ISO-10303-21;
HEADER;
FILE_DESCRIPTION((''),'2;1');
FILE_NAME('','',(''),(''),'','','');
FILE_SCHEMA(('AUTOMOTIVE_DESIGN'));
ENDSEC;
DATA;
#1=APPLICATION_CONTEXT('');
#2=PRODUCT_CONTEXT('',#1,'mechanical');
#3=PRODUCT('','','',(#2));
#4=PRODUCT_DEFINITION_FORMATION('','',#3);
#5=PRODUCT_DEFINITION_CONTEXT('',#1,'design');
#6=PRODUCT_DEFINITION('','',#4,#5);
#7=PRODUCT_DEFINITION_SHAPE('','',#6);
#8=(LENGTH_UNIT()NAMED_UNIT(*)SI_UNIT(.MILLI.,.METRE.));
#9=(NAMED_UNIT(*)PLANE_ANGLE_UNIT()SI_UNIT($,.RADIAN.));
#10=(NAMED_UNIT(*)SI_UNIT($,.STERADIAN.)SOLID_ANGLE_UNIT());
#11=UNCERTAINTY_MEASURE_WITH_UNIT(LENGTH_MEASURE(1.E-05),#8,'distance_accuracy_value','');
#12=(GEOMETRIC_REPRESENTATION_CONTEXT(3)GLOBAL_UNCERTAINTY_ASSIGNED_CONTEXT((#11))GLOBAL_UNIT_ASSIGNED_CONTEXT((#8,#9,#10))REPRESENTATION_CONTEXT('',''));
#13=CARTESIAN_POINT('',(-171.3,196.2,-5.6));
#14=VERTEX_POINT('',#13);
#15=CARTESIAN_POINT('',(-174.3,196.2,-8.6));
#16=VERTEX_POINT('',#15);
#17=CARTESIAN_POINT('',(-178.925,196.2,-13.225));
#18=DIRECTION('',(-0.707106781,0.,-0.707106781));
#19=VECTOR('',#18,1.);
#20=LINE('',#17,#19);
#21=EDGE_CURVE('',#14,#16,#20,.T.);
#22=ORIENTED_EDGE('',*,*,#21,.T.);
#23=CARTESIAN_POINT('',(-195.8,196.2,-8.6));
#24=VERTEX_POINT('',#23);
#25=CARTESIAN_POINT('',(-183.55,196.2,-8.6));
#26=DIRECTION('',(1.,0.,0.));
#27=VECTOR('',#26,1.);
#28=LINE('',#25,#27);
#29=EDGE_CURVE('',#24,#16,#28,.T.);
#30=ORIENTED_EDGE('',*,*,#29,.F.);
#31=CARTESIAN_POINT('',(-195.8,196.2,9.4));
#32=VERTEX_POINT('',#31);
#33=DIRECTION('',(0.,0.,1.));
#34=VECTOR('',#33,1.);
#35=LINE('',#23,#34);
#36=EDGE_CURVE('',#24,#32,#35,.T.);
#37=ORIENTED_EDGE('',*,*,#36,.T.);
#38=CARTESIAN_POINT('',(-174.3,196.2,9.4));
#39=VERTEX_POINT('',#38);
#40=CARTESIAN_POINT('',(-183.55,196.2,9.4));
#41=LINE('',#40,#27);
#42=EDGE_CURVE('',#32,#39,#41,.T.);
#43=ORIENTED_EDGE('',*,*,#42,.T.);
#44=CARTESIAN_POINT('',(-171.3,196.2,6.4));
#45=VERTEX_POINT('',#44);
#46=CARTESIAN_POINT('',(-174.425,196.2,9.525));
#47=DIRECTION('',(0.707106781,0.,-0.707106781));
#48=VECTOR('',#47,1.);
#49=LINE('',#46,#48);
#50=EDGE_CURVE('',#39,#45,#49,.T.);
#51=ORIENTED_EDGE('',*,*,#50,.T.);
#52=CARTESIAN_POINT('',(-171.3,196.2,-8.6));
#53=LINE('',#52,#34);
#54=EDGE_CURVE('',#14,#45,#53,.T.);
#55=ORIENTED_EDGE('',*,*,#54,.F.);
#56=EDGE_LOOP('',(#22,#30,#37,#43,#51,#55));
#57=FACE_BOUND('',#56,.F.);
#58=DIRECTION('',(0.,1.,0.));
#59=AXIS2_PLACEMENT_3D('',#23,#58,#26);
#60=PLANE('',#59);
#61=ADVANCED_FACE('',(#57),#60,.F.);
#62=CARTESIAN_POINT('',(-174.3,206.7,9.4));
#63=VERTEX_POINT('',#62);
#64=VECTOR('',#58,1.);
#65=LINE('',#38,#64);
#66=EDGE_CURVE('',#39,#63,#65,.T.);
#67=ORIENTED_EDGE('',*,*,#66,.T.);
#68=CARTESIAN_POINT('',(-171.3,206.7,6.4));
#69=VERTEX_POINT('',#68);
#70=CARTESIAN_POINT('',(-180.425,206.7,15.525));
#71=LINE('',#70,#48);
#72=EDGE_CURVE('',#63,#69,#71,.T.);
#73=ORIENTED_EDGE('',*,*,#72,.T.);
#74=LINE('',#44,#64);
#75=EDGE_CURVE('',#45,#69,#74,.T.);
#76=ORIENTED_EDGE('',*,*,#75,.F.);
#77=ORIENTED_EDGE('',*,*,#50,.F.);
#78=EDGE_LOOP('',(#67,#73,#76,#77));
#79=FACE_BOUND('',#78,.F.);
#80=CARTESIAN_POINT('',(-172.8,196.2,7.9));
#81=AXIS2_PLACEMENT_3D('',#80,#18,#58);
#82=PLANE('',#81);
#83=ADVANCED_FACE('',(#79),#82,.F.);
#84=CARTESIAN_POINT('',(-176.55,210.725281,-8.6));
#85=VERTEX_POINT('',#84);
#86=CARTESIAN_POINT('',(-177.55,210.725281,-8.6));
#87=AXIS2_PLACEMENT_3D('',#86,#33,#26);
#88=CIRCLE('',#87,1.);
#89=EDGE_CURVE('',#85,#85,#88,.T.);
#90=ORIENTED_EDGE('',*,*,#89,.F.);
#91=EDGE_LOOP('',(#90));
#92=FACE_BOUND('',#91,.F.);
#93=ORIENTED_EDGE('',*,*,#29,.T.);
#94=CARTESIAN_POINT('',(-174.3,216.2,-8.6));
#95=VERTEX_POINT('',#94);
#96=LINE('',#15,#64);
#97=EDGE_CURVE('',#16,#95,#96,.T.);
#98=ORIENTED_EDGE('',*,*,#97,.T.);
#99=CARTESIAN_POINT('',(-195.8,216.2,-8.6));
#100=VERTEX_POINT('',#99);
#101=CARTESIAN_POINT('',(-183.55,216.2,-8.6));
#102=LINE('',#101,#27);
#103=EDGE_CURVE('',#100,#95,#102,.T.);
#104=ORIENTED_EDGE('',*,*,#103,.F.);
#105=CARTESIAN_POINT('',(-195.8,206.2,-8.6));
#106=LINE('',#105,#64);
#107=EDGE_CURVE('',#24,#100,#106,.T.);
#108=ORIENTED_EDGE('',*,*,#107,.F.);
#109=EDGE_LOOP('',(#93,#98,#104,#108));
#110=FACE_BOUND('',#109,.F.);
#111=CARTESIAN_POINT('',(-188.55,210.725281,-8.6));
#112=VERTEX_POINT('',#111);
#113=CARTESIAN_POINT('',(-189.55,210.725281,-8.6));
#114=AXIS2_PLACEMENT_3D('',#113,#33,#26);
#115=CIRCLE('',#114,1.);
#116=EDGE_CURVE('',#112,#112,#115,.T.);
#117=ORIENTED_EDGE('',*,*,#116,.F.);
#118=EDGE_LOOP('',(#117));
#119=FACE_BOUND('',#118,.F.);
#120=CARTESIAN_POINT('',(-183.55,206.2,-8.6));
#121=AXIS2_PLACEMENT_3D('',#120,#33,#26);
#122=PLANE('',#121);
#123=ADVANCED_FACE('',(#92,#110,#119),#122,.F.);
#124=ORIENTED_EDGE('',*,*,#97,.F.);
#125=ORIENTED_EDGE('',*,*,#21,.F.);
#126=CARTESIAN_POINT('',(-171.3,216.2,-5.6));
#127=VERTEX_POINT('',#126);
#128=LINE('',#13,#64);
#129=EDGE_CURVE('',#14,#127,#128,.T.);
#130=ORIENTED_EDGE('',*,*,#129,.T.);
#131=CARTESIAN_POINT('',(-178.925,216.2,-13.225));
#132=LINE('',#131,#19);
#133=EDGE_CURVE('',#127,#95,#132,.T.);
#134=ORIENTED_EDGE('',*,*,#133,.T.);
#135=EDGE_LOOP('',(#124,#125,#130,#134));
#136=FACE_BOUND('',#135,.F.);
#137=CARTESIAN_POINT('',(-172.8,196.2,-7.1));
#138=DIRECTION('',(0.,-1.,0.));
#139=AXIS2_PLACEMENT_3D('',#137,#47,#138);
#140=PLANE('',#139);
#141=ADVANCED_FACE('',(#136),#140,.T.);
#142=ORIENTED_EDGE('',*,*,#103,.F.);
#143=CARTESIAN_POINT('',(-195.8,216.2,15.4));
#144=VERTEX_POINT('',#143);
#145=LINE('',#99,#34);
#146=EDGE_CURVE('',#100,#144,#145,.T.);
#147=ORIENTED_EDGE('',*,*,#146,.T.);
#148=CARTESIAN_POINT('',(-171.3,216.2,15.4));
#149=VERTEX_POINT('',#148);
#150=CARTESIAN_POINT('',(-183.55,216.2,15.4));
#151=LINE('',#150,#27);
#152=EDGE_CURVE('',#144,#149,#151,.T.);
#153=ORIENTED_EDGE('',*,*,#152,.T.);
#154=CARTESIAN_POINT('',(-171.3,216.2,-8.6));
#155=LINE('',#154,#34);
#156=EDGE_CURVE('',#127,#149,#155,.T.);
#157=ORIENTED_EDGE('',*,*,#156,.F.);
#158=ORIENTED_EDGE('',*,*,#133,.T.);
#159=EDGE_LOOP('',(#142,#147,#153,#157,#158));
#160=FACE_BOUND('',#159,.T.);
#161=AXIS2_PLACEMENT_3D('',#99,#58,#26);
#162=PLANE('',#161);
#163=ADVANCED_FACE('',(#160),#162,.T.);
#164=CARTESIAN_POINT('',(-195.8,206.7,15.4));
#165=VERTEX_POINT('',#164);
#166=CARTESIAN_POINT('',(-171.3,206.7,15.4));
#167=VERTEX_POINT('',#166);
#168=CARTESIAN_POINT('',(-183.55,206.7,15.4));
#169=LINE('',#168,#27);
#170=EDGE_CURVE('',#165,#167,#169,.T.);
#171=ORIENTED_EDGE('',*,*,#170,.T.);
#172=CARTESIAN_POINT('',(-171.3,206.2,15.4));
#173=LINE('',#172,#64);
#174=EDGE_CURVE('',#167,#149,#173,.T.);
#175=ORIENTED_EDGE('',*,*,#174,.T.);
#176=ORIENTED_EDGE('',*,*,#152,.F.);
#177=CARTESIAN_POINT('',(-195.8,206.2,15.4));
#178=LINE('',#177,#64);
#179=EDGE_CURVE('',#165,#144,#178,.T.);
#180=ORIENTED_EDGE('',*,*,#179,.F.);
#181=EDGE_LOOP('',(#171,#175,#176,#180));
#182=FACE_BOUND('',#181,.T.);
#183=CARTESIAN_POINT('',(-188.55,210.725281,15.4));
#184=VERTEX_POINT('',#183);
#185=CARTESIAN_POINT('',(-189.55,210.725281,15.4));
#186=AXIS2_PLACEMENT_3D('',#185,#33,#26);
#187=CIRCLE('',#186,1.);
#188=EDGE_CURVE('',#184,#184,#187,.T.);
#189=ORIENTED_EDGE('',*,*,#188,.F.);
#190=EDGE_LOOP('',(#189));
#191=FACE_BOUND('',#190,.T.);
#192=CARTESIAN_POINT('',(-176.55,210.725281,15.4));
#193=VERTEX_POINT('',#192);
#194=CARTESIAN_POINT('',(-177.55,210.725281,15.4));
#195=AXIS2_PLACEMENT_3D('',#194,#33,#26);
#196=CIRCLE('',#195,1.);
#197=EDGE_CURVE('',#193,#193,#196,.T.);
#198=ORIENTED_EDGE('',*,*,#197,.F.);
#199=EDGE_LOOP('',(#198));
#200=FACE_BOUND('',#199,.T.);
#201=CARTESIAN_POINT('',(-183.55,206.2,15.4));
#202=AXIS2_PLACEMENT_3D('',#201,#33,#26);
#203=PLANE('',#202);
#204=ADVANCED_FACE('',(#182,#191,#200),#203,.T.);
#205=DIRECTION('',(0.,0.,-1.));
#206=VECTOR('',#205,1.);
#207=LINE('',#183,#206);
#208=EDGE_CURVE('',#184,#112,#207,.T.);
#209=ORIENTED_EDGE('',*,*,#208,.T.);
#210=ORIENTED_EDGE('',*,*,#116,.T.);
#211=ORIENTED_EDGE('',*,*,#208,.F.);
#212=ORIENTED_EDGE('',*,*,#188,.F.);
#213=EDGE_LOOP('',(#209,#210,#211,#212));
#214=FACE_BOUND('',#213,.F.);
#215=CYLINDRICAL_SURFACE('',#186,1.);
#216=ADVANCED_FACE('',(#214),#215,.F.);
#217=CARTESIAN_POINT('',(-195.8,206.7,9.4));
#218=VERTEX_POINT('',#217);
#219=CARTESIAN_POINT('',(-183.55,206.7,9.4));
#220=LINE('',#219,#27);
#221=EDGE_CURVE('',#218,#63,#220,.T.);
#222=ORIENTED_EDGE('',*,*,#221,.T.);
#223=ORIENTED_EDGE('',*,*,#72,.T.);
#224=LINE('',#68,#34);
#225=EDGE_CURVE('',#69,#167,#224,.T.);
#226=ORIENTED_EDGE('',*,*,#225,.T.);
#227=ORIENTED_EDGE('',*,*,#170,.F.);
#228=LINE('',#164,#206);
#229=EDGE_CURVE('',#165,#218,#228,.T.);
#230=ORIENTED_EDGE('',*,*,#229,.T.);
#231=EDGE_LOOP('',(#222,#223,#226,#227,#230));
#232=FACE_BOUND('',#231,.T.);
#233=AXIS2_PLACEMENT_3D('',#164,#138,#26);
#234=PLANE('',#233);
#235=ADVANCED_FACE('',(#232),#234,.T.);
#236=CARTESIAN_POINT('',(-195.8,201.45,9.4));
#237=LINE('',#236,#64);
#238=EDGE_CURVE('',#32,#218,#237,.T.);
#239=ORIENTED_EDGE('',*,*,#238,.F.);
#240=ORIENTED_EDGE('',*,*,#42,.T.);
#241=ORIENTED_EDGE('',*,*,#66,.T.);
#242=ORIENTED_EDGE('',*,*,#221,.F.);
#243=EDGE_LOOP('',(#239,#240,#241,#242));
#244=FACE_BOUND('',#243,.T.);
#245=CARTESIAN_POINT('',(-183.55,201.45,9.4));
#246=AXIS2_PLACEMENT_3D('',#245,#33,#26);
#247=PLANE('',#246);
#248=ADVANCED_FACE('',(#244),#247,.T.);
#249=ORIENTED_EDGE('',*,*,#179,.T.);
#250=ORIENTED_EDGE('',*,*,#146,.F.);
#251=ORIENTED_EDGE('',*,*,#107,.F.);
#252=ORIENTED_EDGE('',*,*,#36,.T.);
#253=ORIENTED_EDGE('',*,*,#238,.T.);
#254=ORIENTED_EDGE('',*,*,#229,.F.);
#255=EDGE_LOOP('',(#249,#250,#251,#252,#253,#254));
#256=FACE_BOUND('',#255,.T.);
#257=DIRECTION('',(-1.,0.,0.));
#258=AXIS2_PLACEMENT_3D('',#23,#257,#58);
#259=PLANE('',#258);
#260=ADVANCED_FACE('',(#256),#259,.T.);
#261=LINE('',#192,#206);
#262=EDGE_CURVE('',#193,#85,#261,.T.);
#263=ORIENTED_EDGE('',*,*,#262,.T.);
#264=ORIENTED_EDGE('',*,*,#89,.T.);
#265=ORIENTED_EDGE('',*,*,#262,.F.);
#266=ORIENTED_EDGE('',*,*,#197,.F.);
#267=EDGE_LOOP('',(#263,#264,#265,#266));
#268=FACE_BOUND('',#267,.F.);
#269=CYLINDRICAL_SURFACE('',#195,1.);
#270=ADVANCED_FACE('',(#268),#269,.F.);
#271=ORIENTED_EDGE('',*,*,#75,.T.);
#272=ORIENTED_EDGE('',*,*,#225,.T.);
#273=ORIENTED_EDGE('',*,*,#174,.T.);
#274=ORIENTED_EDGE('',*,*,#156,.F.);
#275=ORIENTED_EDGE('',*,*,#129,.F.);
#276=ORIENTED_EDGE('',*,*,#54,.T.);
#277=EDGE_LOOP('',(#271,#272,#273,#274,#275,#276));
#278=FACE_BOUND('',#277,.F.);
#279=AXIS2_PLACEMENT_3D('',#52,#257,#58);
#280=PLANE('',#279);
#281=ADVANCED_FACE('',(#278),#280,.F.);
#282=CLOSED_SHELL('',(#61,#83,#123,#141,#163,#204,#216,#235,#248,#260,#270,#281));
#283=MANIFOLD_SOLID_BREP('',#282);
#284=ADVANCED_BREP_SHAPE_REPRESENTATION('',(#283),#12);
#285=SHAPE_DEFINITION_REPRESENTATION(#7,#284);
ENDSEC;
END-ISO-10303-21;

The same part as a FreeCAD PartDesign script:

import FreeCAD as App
import Part
import Sketcher


def edges_at(feature, points):
    """Names of the edges that pass closest to the given points."""
    edges = feature.Shape.Edges
    near = lambda p: min(range(len(edges)), key=lambda i: edges[i].distToShape(Part.Vertex(*p))[0])
    return sorted({f"Edge{near(p) + 1}" for p in points})


def add_polygon(sketch, points):
    """Adds a closed chain of lines whose ends are joined by coincident constraints."""
    first, n = sketch.GeometryCount, len(points)
    for a, b in zip(points, points[1:] + points[:1]):
        sketch.addGeometry(Part.LineSegment(App.Vector(*a, 0), App.Vector(*b, 0)), False)
    for i in range(n):
        sketch.addConstraint(Sketcher.Constraint("Coincident", first + i, 2, first + (i + 1) % n, 1))

doc = App.newDocument("Part")
body = doc.addObject("PartDesign::Body", "Body")

# Sketch on XY plane
sketch1 = doc.addObject("Sketcher::SketchObject", "Sketch")
body.addObject(sketch1)
sketch1.AttachmentSupport = (doc.XY_Plane, [""])
sketch1.MapMode = "FlatFace"
add_polygon(sketch1, [(-195.8, 216.2), (-195.8, 196.2), (-171.3, 196.2), (-171.3, 216.2)])  # lines 0-3
sketch1.addConstraint(Sketcher.Constraint("Vertical", 0))
sketch1.addConstraint(Sketcher.Constraint("Horizontal", 1))
sketch1.addConstraint(Sketcher.Constraint("Vertical", 2))
sketch1.addConstraint(Sketcher.Constraint("Horizontal", 3))
sketch1.addConstraint(Sketcher.Constraint("DistanceY", 0, 2, 0, 1, 20.0))
sketch1.addConstraint(Sketcher.Constraint("DistanceX", 1, 1, 1, 2, 24.5))
sketch1.addConstraint(Sketcher.Constraint("DistanceX", 0, 2, -1, 1, 195.8))
sketch1.addConstraint(Sketcher.Constraint("DistanceY", -1, 1, 0, 2, 196.2))
pad1 = doc.addObject("PartDesign::Pad", "Pad")
body.addObject(pad1)
pad1.Profile = sketch1
pad1.Length = 24

# Sketch on XY plane
sketch2 = doc.addObject("Sketcher::SketchObject", "Sketch001")
body.addObject(sketch2)
sketch2.AttachmentSupport = (doc.XY_Plane, [""])
sketch2.MapMode = "FlatFace"
sketch2.AttachmentOffset = App.Placement(App.Vector(0, 0, 24), App.Rotation())
add_polygon(sketch2, [(-195.8, 206.7), (-195.8, 196.2), (-171.3, 196.2), (-171.3, 206.7)])  # lines 0-3
sketch2.addConstraint(Sketcher.Constraint("Vertical", 0))
sketch2.addConstraint(Sketcher.Constraint("Horizontal", 1))
sketch2.addConstraint(Sketcher.Constraint("Vertical", 2))
sketch2.addConstraint(Sketcher.Constraint("Horizontal", 3))
sketch2.addConstraint(Sketcher.Constraint("DistanceX", 1, 1, 1, 2, 24.5))
sketch2.addConstraint(Sketcher.Constraint("DistanceY", 0, 2, 0, 1, 10.5))
sketch2.addConstraint(Sketcher.Constraint("DistanceX", 0, 2, -1, 1, 195.8))
sketch2.addConstraint(Sketcher.Constraint("DistanceY", -1, 1, 0, 2, 196.2))
pocket1 = doc.addObject("PartDesign::Pocket", "Pocket")
body.addObject(pocket1)
pocket1.Profile = sketch2
pocket1.Length = 6
doc.recompute()

chamfer = doc.addObject("PartDesign::Chamfer", "Chamfer")
body.addObject(chamfer)
chamfer.Base = (pocket1, edges_at(pocket1, [(-171.3, 201.45, 18)]))
chamfer.Size = 3

# Sketch on XY plane
sketch3 = doc.addObject("Sketcher::SketchObject", "Sketch002")
body.addObject(sketch3)
sketch3.AttachmentSupport = (doc.XY_Plane, [""])
sketch3.MapMode = "FlatFace"
sketch3.AttachmentOffset = App.Placement(App.Vector(0, 0, 24), App.Rotation())
sketch3.addGeometry(Part.Circle(App.Vector(-189.55, 210.725281, 0), App.Vector(0, 0, 1), 1), False)
sketch3.addGeometry(Part.Circle(App.Vector(-177.55, 210.725281, 0), App.Vector(0, 0, 1), 1), False)
sketch3.addConstraint(Sketcher.Constraint("Equal", 0, 1))
sketch3.addConstraint(Sketcher.Constraint("Horizontal", 0, 3, 1, 3))
sketch3.addConstraint(Sketcher.Constraint("Diameter", 0, 2.0))
sketch3.addConstraint(Sketcher.Constraint("DistanceX", 0, 3, 1, 3, 12.0))
sketch3.addConstraint(Sketcher.Constraint("DistanceX", 0, 3, -1, 1, 189.55))
sketch3.addConstraint(Sketcher.Constraint("DistanceY", -1, 1, 0, 3, 210.725281))
pocket2 = doc.addObject("PartDesign::Pocket", "Pocket001")
body.addObject(pocket2)
pocket2.Profile = sketch3
pocket2.Type = "ThroughAll"
doc.recompute()

chamfer2 = doc.addObject("PartDesign::Chamfer", "Chamfer001")
body.addObject(chamfer2)
chamfer2.Base = (pocket2, edges_at(pocket2, [(-171.3, 206.2, 0)]))
chamfer2.Size = 3
body2 = doc.addObject("PartDesign::Body", "Body001")
doc.recompute()

body.Placement = App.Placement(App.Vector(0, 0, -8.6), App.Rotation(App.Vector(0, 0, 1), 0))
boolean = doc.addObject("PartDesign::Boolean", "Boolean")
body2.addObject(boolean)
boolean.Type = "Fuse"
boolean.addObjects([body])

doc.recompute()
